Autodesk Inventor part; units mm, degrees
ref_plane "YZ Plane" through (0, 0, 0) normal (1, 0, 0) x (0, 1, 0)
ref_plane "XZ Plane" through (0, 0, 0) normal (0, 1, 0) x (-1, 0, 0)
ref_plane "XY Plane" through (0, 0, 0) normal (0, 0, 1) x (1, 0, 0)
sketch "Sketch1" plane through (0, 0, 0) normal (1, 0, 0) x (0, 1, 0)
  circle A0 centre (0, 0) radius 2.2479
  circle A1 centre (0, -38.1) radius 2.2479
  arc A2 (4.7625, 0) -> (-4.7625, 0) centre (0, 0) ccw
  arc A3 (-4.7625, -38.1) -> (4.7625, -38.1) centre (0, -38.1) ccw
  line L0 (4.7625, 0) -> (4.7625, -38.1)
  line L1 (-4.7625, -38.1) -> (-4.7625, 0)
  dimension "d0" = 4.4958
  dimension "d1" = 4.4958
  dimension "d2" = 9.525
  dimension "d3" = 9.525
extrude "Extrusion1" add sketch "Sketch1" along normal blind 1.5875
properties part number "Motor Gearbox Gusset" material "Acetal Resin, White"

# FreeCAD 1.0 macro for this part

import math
import FreeCAD as App
import Part
import Sketcher

V = App.Vector
Q = App.Units.Quantity

doc = App.newDocument("Part")
body = doc.addObject("PartDesign::Body", "Body")

sketch1 = body.newObject("Sketcher::SketchObject", "Sketch")
sketch1.AttachmentSupport = (doc.getObject("YZ_Plane"), [""])
sketch1.MapMode = "FlatFace"
sketch1.addGeometry(Part.LineSegment(V(4.8, -38.1, 0), V(4.8, 0, 0)), False)
sketch1.addGeometry(Part.ArcOfCircle(Part.Circle(V(0, 0, 0), V(0, 0, 1), 4.8), math.radians(0), math.radians(180)), False)
sketch1.addGeometry(Part.LineSegment(V(-4.8, 0, 0), V(-4.8, -38.1, 0)), False)
sketch1.addGeometry(Part.ArcOfCircle(Part.Circle(V(0, -38.1, 0), V(0, 0, 1), 4.8), math.radians(180), math.radians(360)), False)
sketch1.addGeometry(Part.Circle(V(0, -38.1, 0), V(0, 0, 1), 2.2), False)
sketch1.addGeometry(Part.Circle(V(0, 0, 0), V(0, 0, 1), 2.2), False)
sketch1.addConstraint(Sketcher.Constraint("Tangent", 0, 2, 1, 1))
sketch1.addConstraint(Sketcher.Constraint("Tangent", 1, 2, 2, 1))
sketch1.addConstraint(Sketcher.Constraint("Tangent", 2, 2, 3, 1))
sketch1.addConstraint(Sketcher.Constraint("Tangent", 3, 2, 0, 1))
sketch1.addConstraint(Sketcher.Constraint("Vertical", 0))
sketch1.addConstraint(Sketcher.Constraint("Vertical", 2))
sketch1.addConstraint(Sketcher.Constraint("Coincident", 1, 3, -1, 1))
sketch1.addConstraint(Sketcher.Constraint("Coincident", 5, 3, -1, 1))
sketch1.addConstraint(Sketcher.Constraint("Coincident", 4, 3, 3, 3))
sketch1.addConstraint(Sketcher.Constraint("Equal", 4, 5))
sketch1.addConstraint(Sketcher.Constraint("Diameter", 4, Q("0.177 in")))
sketch1.addConstraint(Sketcher.Constraint("Radius", 1, Q("0.1875 in")))
sketch1.addConstraint(Sketcher.Constraint("DistanceY", 0, 1, 0, 2, Q("1.5 in")))
pad1 = body.newObject("PartDesign::Pad", "Pad")
pad1.Profile = sketch1
pad1.Length = Q("0.0625 in")

doc.recompute()
